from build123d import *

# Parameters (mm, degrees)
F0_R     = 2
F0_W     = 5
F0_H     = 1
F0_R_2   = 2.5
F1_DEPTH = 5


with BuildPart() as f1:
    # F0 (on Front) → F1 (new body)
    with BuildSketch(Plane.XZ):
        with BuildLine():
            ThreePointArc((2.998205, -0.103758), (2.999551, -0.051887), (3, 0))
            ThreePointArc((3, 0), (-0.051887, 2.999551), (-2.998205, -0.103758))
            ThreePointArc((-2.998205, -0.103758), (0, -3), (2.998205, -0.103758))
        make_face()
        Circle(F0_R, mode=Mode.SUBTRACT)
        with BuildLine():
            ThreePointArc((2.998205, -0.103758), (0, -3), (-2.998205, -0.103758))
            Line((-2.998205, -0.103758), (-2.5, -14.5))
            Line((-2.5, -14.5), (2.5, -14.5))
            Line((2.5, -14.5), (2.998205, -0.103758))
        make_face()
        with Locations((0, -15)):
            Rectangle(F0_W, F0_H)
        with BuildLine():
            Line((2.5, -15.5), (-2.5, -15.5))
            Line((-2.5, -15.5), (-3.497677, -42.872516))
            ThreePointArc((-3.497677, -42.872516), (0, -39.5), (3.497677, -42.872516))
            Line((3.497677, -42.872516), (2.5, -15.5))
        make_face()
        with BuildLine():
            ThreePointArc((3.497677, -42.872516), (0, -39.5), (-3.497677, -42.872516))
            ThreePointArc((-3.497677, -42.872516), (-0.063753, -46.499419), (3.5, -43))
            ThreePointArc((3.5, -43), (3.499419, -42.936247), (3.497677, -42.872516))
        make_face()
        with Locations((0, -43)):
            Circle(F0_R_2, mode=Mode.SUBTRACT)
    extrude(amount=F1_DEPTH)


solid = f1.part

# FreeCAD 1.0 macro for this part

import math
import FreeCAD as App
import Part
import Sketcher

V = App.Vector

doc = App.newDocument("Part")
body = doc.addObject("PartDesign::Body", "Body")

# Sketch on XZ plane
sketch1 = body.newObject("Sketcher::SketchObject", "Sketch")
sketch1.AttachmentSupport = (doc.getObject("XZ_Plane"), [""])
sketch1.MapMode = "FlatFace"
sketch1.addGeometry([
    Part.ArcOfCircle(Part.Circle(V(0, 0, 0), V(0, 0, 1), 3), math.radians(-1.98), math.radians(0)),  # 0
    Part.ArcOfCircle(Part.Circle(V(0, 0, 0), V(0, 0, 1), 3), math.radians(0), math.radians(182)),  # 1
    Part.LineSegment(V(-3, -0.1, 0), V(-2.5, -14.5, 0)),  # 2
    Part.LineSegment(V(-2.5, -14.5, 0), V(-2.5, -15.5, 0)),  # 3
    Part.LineSegment(V(-2.5, -15.5, 0), V(-3.5, -42.87, 0)),  # 4
    Part.ArcOfCircle(Part.Circle(V(0, -43, 0), V(0, 0, 1), 3.5), math.radians(178), math.radians(360)),  # 5
    Part.ArcOfCircle(Part.Circle(V(0, -43, 0), V(0, 0, 1), 3.5), math.radians(0), math.radians(2.09)),  # 6
    Part.LineSegment(V(3.5, -42.87, 0), V(2.5, -15.5, 0)),  # 7
    Part.LineSegment(V(2.5, -15.5, 0), V(2.5, -14.5, 0)),  # 8
    Part.LineSegment(V(2.5, -14.5, 0), V(3, -0.1, 0)),  # 9
    Part.Circle(V(0, -43, 0), V(0, 0, 1), 2.5),  # 10
    Part.Circle(V(0, 0, 0), V(0, 0, 1), 2),  # 11
], False)
sketch1.addConstraint([
    Sketcher.Constraint("Coincident", 0, 2, 1, 1),
    Sketcher.Constraint("Tangent", 1, 2, 2, 1),
    Sketcher.Constraint("Coincident", 2, 2, 3, 1),
    Sketcher.Constraint("Coincident", 3, 2, 4, 1),
    Sketcher.Constraint("Tangent", 4, 2, 5, 1),
    Sketcher.Constraint("Coincident", 5, 2, 6, 1),
    Sketcher.Constraint("Tangent", 6, 2, 7, 1),
    Sketcher.Constraint("Coincident", 7, 2, 8, 1),
    Sketcher.Constraint("Coincident", 8, 2, 9, 1),
    Sketcher.Constraint("Coincident", 9, 2, 0, 1),
    Sketcher.Constraint("Vertical", 3),
    Sketcher.Constraint("Vertical", 8),
    Sketcher.Constraint("Coincident", 1, 3, -1, 1),
    Sketcher.Constraint("Coincident", 11, 3, -1, 1),
    Sketcher.Constraint("Coincident", 10, 3, 5, 3),
    Sketcher.Constraint("Symmetric", 4, 2, 6, 2, -2),
    Sketcher.Constraint("Symmetric", 3, 2, 7, 2, -2),
    Sketcher.Constraint("Symmetric", 1, 2, 9, 2, -2),
    Sketcher.Constraint("PointOnObject", 0, 2, -1),
    Sketcher.Constraint("Horizontal", 10, 3, 5, 2),
    Sketcher.Constraint("Horizontal", 2, 2, 8, 2),
    Sketcher.Constraint("Diameter", 10, 5.0),
    Sketcher.Constraint("Diameter", 11, 4.0),
    Sketcher.Constraint("Radius", 1, 3.0),
    Sketcher.Constraint("Radius", 5, 3.5),
    Sketcher.Constraint("DistanceY", 3, 2, 3, 1, 1.0),
    Sketcher.Constraint("DistanceY", 5, 3, -1, 1, 43.0),
    Sketcher.Constraint("DistanceX", 3, 2, 5, 2, 6.0),
    Sketcher.Constraint("DistanceY", 2, 2, -1, 1, 14.5),
    Sketcher.Constraint("Radius", 6, 3.500431),
    Sketcher.Constraint("Radius", 0, 3.001125),
])
pad1 = body.newObject("PartDesign::Pad", "Pad")
pad1.Profile = sketch1
pad1.Length = 5

doc.recompute()
